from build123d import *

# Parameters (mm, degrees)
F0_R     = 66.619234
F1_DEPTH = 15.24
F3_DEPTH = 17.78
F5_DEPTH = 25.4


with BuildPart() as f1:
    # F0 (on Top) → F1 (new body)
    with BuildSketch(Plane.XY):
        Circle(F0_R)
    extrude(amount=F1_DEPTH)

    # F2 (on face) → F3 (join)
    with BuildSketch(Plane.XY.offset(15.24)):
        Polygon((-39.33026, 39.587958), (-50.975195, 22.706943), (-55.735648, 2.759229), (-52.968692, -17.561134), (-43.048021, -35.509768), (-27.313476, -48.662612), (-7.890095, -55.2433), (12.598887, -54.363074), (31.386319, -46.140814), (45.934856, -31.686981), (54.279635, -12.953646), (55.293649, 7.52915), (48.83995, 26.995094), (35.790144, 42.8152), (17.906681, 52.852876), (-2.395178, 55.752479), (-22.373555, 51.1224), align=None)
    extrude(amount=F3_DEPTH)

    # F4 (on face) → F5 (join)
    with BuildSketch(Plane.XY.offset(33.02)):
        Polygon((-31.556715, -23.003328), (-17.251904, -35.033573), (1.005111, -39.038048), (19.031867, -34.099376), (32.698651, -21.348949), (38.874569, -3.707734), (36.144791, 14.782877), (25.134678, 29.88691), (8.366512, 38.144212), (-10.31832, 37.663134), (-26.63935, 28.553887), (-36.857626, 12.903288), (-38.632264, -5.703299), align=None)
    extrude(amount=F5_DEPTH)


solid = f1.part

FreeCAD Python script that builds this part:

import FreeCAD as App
import Part
import Sketcher
from FreeCAD import Vector
Q = App.Units.Quantity

doc = App.newDocument("Part")
body = doc.addObject("PartDesign::Body", "Body")

# Sketch on XY plane
sketch1 = body.newObject("Sketcher::SketchObject", "Sketch")
sketch1.AttachmentSupport = (doc.getObject("XY_Plane"), [""])
sketch1.MapMode = "FlatFace"
sketch1.addGeometry(Part.Circle(Vector(0, 0, 0), Vector(0, 0, 1), 66.619234), False)
sketch1.addConstraint(Sketcher.Constraint("Coincident", 0, 3, -1, 1))
sketch1.addConstraint(Sketcher.Constraint("Diameter", 0, 133.238468))
pad1 = body.newObject("PartDesign::Pad", "Pad")
pad1.Profile = sketch1
pad1.Length = Q("0.6 in")

# Sketch on XY plane
sketch2 = body.newObject("Sketcher::SketchObject", "Sketch001")
sketch2.AttachmentSupport = (doc.getObject("XY_Plane"), [""])
sketch2.MapMode = "FlatFace"
sketch2.AttachmentOffset = App.Placement(Vector(0, 0, 0.6 * 25.4), App.Rotation())
sketch2.addGeometry(Part.LineSegment(Vector(-39.33026, 39.587958, 0), Vector(-50.975195, 22.706943, 0)), False)
sketch2.addGeometry(Part.LineSegment(Vector(-50.975195, 22.706943, 0), Vector(-55.735648, 2.759229, 0)), False)
sketch2.addGeometry(Part.LineSegment(Vector(-55.735648, 2.759229, 0), Vector(-52.968692, -17.561134, 0)), False)
sketch2.addGeometry(Part.LineSegment(Vector(-52.968692, -17.561134, 0), Vector(-43.048021, -35.509768, 0)), False)
sketch2.addGeometry(Part.LineSegment(Vector(-43.048021, -35.509768, 0), Vector(-27.313476, -48.662612, 0)), False)
sketch2.addGeometry(Part.LineSegment(Vector(-27.313476, -48.662612, 0), Vector(-7.890095, -55.2433, 0)), False)
sketch2.addGeometry(Part.LineSegment(Vector(-7.890095, -55.2433, 0), Vector(12.598887, -54.363074, 0)), False)
sketch2.addGeometry(Part.LineSegment(Vector(12.598887, -54.363074, 0), Vector(31.386319, -46.140814, 0)), False)
sketch2.addGeometry(Part.LineSegment(Vector(31.386319, -46.140814, 0), Vector(45.934856, -31.686981, 0)), False)
sketch2.addGeometry(Part.LineSegment(Vector(45.934856, -31.686981, 0), Vector(54.279635, -12.953646, 0)), False)
sketch2.addGeometry(Part.LineSegment(Vector(54.279635, -12.953646, 0), Vector(55.293649, 7.52915, 0)), False)
sketch2.addGeometry(Part.LineSegment(Vector(55.293649, 7.52915, 0), Vector(48.83995, 26.995094, 0)), False)
sketch2.addGeometry(Part.LineSegment(Vector(48.83995, 26.995094, 0), Vector(35.790144, 42.8152, 0)), False)
sketch2.addGeometry(Part.LineSegment(Vector(35.790144, 42.8152, 0), Vector(17.906681, 52.852876, 0)), False)
sketch2.addGeometry(Part.LineSegment(Vector(17.906681, 52.852876, 0), Vector(-2.395178, 55.752479, 0)), False)
sketch2.addGeometry(Part.LineSegment(Vector(-2.395178, 55.752479, 0), Vector(-22.373555, 51.1224, 0)), False)
sketch2.addGeometry(Part.LineSegment(Vector(-22.373555, 51.1224, 0), Vector(-39.33026, 39.587958, 0)), False)
sketch2.addConstraint(Sketcher.Constraint("Coincident", 0, 2, 1, 1))
sketch2.addConstraint(Sketcher.Constraint("Coincident", 1, 2, 2, 1))
sketch2.addConstraint(Sketcher.Constraint("Coincident", 2, 2, 3, 1))
sketch2.addConstraint(Sketcher.Constraint("Coincident", 3, 2, 4, 1))
sketch2.addConstraint(Sketcher.Constraint("Coincident", 4, 2, 5, 1))
sketch2.addConstraint(Sketcher.Constraint("Coincident", 5, 2, 6, 1))
sketch2.addConstraint(Sketcher.Constraint("Coincident", 6, 2, 7, 1))
sketch2.addConstraint(Sketcher.Constraint("Coincident", 7, 2, 8, 1))
sketch2.addConstraint(Sketcher.Constraint("Coincident", 8, 2, 9, 1))
sketch2.addConstraint(Sketcher.Constraint("Coincident", 9, 2, 10, 1))
sketch2.addConstraint(Sketcher.Constraint("Coincident", 10, 2, 11, 1))
sketch2.addConstraint(Sketcher.Constraint("Coincident", 11, 2, 12, 1))
sketch2.addConstraint(Sketcher.Constraint("Coincident", 12, 2, 13, 1))
sketch2.addConstraint(Sketcher.Constraint("Coincident", 13, 2, 14, 1))
sketch2.addConstraint(Sketcher.Constraint("Coincident", 14, 2, 15, 1))
sketch2.addConstraint(Sketcher.Constraint("Coincident", 15, 2, 16, 1))
sketch2.addConstraint(Sketcher.Constraint("Coincident", 16, 2, 0, 1))
sketch2.addConstraint(Sketcher.Constraint("Equal", 0, 1))
sketch2.addConstraint(Sketcher.Constraint("Equal", 1, 2))
sketch2.addConstraint(Sketcher.Constraint("Equal", 2, 3))
sketch2.addConstraint(Sketcher.Constraint("Equal", 3, 4))
sketch2.addConstraint(Sketcher.Constraint("Equal", 4, 5))
sketch2.addConstraint(Sketcher.Constraint("Equal", 5, 6))
sketch2.addConstraint(Sketcher.Constraint("Equal", 6, 7))
sketch2.addConstraint(Sketcher.Constraint("Equal", 7, 8))
sketch2.addConstraint(Sketcher.Constraint("Equal", 8, 9))
sketch2.addConstraint(Sketcher.Constraint("Equal", 9, 10))
sketch2.addConstraint(Sketcher.Constraint("Equal", 10, 11))
sketch2.addConstraint(Sketcher.Constraint("Equal", 11, 12))
sketch2.addConstraint(Sketcher.Constraint("Equal", 12, 13))
sketch2.addConstraint(Sketcher.Constraint("Equal", 13, 14))
sketch2.addConstraint(Sketcher.Constraint("Equal", 14, 15))
sketch2.addConstraint(Sketcher.Constraint("Equal", 15, 16))
sketch2.addConstraint(Sketcher.Constraint("DistanceX", 4, 2, 5, 2, Q("0.7647 in")))
sketch2.addConstraint(Sketcher.Constraint("DistanceY", 5, 2, -1, 1, 55.2433))
sketch2.addConstraint(Sketcher.Constraint("DistanceY", -1, 1, 12, 2, 42.8152))
sketch2.addConstraint(Sketcher.Constraint("DistanceY", -1, 1, 15, 2, 51.1224))
sketch2.addConstraint(Sketcher.Constraint("DistanceX", 0, 2, 5, 2, 43.0851))
sketch2.addConstraint(Sketcher.Constraint("DistanceY", 4, 2, 7, 2, 2.521798))
sketch2.addConstraint(Sketcher.Constraint("DistanceX", 11, 2, 10, 2, 6.453699))
sketch2.addConstraint(Sketcher.Constraint("DistanceX", 15, 2, 12, 2, 58.163699))
sketch2.addConstraint(Sketcher.Constraint("Distance", 0, 20.507881))
sketch2.addConstraint(Sketcher.Constraint("DistanceY", -1, 1, 1, 2, 2.759229))
sketch2.addConstraint(Sketcher.Constraint("DistanceX", 2, 2, -1, 1, 52.968692))
sketch2.addConstraint(Sketcher.Constraint("DistanceX", 3, 2, -1, 1, 43.048021))
sketch2.addConstraint(Sketcher.Constraint("DistanceX", -1, 1, 7, 2, 31.386319))
sketch2.addConstraint(Sketcher.Constraint("DistanceY", 8, 2, -1, 1, 31.686981))
sketch2.addConstraint(Sketcher.Constraint("DistanceX", -1, 1, 10, 2, 55.293649))
sketch2.addConstraint(Sketcher.Constraint("DistanceY", -1, 1, 10, 2, 7.52915))
sketch2.addConstraint(Sketcher.Constraint("DistanceX", -1, 1, 13, 2, 17.906681))
sketch2.addConstraint(Sketcher.Constraint("DistanceX", 16, 2, -1, 1, 39.33026))
pad2 = body.newObject("PartDesign::Pad", "Pad001")
pad2.Profile = sketch2
pad2.Length = Q("0.7 in")

# Sketch on XY plane
sketch3 = body.newObject("Sketcher::SketchObject", "Sketch002")
sketch3.AttachmentSupport = (doc.getObject("XY_Plane"), [""])
sketch3.MapMode = "FlatFace"
sketch3.AttachmentOffset = App.Placement(Vector(0, 0, 1.3 * 25.4), App.Rotation())
sketch3.addGeometry(Part.LineSegment(Vector(-31.556715, -23.003328, 0), Vector(-17.251904, -35.033573, 0)), False)
sketch3.addGeometry(Part.LineSegment(Vector(-17.251904, -35.033573, 0), Vector(1.005111, -39.038048, 0)), False)
sketch3.addGeometry(Part.LineSegment(Vector(1.005111, -39.038048, 0), Vector(19.031867, -34.099376, 0)), False)
sketch3.addGeometry(Part.LineSegment(Vector(19.031867, -34.099376, 0), Vector(32.698651, -21.348949, 0)), False)
sketch3.addGeometry(Part.LineSegment(Vector(32.698651, -21.348949, 0), Vector(38.874569, -3.707734, 0)), False)
sketch3.addGeometry(Part.LineSegment(Vector(38.874569, -3.707734, 0), Vector(36.144791, 14.782877, 0)), False)
sketch3.addGeometry(Part.LineSegment(Vector(36.144791, 14.782877, 0), Vector(25.134678, 29.88691, 0)), False)
sketch3.addGeometry(Part.LineSegment(Vector(25.134678, 29.88691, 0), Vector(8.366512, 38.144212, 0)), False)
sketch3.addGeometry(Part.LineSegment(Vector(8.366512, 38.144212, 0), Vector(-10.31832, 37.663134, 0)), False)
sketch3.addGeometry(Part.LineSegment(Vector(-10.31832, 37.663134, 0), Vector(-26.63935, 28.553887, 0)), False)
sketch3.addGeometry(Part.LineSegment(Vector(-26.63935, 28.553887, 0), Vector(-36.857626, 12.903288, 0)), False)
sketch3.addGeometry(Part.LineSegment(Vector(-36.857626, 12.903288, 0), Vector(-38.632264, -5.703299, 0)), False)
sketch3.addGeometry(Part.LineSegment(Vector(-38.632264, -5.703299, 0), Vector(-31.556715, -23.003328, 0)), False)
sketch3.addConstraint(Sketcher.Constraint("Coincident", 0, 2, 1, 1))
sketch3.addConstraint(Sketcher.Constraint("Coincident", 1, 2, 2, 1))
sketch3.addConstraint(Sketcher.Constraint("Coincident", 2, 2, 3, 1))
sketch3.addConstraint(Sketcher.Constraint("Coincident", 3, 2, 4, 1))
sketch3.addConstraint(Sketcher.Constraint("Coincident", 4, 2, 5, 1))
sketch3.addConstraint(Sketcher.Constraint("Coincident", 5, 2, 6, 1))
sketch3.addConstraint(Sketcher.Constraint("Coincident", 6, 2, 7, 1))
sketch3.addConstraint(Sketcher.Constraint("Coincident", 7, 2, 8, 1))
sketch3.addConstraint(Sketcher.Constraint("Coincident", 8, 2, 9, 1))
sketch3.addConstraint(Sketcher.Constraint("Coincident", 9, 2, 10, 1))
sketch3.addConstraint(Sketcher.Constraint("Coincident", 10, 2, 11, 1))
sketch3.addConstraint(Sketcher.Constraint("Coincident", 11, 2, 12, 1))
sketch3.addConstraint(Sketcher.Constraint("Coincident", 12, 2, 0, 1))
sketch3.addConstraint(Sketcher.Constraint("Equal", 0, 1))
sketch3.addConstraint(Sketcher.Constraint("Equal", 1, 2))
sketch3.addConstraint(Sketcher.Constraint("Equal", 2, 3))
sketch3.addConstraint(Sketcher.Constraint("Equal", 3, 4))
sketch3.addConstraint(Sketcher.Constraint("Equal", 4, 5))
sketch3.addConstraint(Sketcher.Constraint("Equal", 5, 6))
sketch3.addConstraint(Sketcher.Constraint("Equal", 6, 7))
sketch3.addConstraint(Sketcher.Constraint("Equal", 7, 8))
sketch3.addConstraint(Sketcher.Constraint("Equal", 8, 9))
sketch3.addConstraint(Sketcher.Constraint("Equal", 9, 10))
sketch3.addConstraint(Sketcher.Constraint("Equal", 10, 11))
sketch3.addConstraint(Sketcher.Constraint("Equal", 11, 12))
sketch3.addConstraint(Sketcher.Constraint("DistanceY", 11, 2, -1, 1, 5.703299))
sketch3.addConstraint(Sketcher.Constraint("DistanceY", 1, 2, 3, 2, 17.689099))
sketch3.addConstraint(Sketcher.Constraint("DistanceY", 10, 2, 9, 2, 15.650599))
sketch3.addConstraint(Sketcher.Constraint("DistanceX", -1, 1, 1, 2, 1.005111))
sketch3.addConstraint(Sketcher.Constraint("DistanceY", 1, 2, -1, 1, 39.038048))
sketch3.addConstraint(Sketcher.Constraint("DistanceX", -1, 1, 3, 2, 32.698651))
sketch3.addConstraint(Sketcher.Constraint("DistanceX", -1, 1, 4, 2, 38.874569))
sketch3.addConstraint(Sketcher.Constraint("DistanceX", -1, 1, 5, 2, 36.144791))
sketch3.addConstraint(Sketcher.Constraint("DistanceX", -1, 1, 6, 2, 25.134678))
sketch3.addConstraint(Sketcher.Constraint("DistanceY", -1, 1, 6, 2, 29.88691))
sketch3.addConstraint(Sketcher.Constraint("DistanceX", 8, 2, -1, 1, 10.31832))
sketch3.addConstraint(Sketcher.Constraint("DistanceX", 9, 2, -1, 1, 26.63935))
sketch3.addConstraint(Sketcher.Constraint("DistanceY", 12, 2, -1, 1, 23.003328))
sketch3.addConstraint(Sketcher.Constraint("DistanceX", 0, 2, 2, 2, 36.283771))
pad3 = body.newObject("PartDesign::Pad", "Pad002")
pad3.Profile = sketch3
pad3.Length = Q("1 in")

doc.recompute()
